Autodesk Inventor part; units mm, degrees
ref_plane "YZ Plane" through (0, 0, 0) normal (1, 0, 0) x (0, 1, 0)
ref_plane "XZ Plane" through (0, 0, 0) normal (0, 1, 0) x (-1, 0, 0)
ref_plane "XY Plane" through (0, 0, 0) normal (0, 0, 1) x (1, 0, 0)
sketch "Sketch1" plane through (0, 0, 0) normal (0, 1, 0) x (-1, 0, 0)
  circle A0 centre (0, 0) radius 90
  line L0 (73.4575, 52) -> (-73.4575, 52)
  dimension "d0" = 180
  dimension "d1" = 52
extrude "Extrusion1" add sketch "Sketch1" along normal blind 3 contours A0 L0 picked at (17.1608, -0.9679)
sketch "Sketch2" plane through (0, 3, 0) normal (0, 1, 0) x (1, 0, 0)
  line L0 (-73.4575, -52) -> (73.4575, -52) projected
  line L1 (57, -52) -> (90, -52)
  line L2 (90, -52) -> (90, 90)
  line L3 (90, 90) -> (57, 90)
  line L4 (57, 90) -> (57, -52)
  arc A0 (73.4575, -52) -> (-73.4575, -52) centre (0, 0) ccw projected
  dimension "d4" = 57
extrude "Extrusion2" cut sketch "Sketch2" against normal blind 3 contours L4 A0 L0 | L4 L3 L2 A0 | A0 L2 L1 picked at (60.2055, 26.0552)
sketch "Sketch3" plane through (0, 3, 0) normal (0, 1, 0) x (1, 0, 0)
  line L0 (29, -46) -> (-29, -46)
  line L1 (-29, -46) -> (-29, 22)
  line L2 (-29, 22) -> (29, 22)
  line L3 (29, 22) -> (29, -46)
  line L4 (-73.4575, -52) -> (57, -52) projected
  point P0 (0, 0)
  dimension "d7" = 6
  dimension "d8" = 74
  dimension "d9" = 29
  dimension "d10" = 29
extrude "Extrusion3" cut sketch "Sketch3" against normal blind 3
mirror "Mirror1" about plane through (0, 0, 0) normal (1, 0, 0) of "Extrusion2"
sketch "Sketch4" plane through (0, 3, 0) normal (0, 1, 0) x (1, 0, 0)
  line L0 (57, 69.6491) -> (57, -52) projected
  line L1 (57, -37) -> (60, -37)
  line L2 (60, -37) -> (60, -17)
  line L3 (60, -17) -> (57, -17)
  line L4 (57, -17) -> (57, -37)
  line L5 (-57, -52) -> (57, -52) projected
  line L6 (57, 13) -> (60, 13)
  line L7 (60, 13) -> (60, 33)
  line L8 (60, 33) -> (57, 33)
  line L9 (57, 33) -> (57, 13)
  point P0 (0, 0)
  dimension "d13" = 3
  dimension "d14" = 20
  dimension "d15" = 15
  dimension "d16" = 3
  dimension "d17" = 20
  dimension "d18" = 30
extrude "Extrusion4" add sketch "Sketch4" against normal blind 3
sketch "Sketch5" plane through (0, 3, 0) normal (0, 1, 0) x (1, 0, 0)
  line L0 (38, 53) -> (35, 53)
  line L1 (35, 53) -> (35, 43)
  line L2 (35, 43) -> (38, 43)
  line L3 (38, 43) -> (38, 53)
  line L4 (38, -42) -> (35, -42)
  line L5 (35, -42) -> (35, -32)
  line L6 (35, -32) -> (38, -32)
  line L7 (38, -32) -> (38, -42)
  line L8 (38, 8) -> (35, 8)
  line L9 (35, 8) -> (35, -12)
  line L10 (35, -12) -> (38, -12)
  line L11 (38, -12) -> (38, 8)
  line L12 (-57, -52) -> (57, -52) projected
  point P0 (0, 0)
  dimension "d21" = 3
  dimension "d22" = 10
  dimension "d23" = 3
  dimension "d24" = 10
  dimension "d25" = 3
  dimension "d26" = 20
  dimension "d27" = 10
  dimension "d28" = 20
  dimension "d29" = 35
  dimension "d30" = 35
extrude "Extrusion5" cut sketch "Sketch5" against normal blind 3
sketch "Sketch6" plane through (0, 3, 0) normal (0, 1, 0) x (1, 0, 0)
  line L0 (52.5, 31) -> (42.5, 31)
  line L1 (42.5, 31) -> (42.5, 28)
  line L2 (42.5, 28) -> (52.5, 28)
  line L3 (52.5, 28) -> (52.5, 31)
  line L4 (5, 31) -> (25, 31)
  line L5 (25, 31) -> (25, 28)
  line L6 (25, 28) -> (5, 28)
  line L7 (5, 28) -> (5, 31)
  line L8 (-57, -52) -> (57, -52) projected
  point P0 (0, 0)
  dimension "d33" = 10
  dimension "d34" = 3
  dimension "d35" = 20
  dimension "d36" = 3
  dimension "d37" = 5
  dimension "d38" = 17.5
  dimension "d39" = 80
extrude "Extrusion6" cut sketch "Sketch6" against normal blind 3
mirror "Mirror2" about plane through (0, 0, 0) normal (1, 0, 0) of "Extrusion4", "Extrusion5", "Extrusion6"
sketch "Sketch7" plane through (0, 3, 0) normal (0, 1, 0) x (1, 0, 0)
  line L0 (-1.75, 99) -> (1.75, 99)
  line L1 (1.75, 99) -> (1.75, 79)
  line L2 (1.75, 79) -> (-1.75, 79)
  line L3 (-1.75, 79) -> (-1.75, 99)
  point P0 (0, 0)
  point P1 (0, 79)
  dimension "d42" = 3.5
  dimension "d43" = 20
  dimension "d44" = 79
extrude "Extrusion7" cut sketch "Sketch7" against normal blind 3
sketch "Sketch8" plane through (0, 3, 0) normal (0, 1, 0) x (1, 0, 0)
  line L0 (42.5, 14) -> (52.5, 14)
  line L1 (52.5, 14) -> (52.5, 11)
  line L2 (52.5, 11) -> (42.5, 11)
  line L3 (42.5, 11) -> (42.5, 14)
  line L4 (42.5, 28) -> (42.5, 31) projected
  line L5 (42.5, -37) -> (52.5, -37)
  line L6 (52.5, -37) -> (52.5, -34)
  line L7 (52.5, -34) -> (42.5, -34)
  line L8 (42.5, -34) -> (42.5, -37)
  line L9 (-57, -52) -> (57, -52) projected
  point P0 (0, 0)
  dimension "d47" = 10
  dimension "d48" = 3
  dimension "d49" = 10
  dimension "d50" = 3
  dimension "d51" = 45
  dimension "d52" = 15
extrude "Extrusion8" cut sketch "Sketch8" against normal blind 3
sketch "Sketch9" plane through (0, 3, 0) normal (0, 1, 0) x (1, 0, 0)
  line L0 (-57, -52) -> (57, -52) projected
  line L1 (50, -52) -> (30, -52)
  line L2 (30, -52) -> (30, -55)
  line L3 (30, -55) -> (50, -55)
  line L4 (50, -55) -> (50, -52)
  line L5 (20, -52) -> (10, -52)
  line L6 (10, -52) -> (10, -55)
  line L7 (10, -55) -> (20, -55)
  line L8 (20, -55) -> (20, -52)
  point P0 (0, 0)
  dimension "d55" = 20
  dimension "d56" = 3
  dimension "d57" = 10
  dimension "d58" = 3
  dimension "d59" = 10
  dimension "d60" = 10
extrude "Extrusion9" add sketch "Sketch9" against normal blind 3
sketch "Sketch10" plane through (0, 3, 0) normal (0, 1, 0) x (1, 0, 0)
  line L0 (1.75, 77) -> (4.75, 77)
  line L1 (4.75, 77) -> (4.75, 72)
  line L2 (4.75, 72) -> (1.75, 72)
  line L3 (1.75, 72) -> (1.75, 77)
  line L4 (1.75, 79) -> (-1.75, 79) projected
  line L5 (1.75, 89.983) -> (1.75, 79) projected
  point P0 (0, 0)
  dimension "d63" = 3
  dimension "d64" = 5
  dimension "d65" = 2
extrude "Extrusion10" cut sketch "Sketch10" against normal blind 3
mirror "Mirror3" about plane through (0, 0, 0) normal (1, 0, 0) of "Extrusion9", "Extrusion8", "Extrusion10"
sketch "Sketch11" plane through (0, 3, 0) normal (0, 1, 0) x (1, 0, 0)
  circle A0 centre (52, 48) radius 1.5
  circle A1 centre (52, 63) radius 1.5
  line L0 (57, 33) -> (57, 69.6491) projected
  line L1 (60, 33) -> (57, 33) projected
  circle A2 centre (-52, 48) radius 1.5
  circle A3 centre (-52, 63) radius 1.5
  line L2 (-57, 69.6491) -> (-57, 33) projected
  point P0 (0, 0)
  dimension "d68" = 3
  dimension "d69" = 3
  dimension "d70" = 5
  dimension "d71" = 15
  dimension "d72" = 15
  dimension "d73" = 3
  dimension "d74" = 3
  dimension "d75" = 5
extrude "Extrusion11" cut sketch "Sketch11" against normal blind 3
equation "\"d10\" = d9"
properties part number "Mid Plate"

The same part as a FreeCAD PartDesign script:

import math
import FreeCAD as App
import Part
import Sketcher
from FreeCAD import Vector
Q = App.Units.Quantity


def add_polygon(sketch, points):
    """Adds a closed chain of lines whose ends are joined by coincident constraints."""
    first, n = sketch.GeometryCount, len(points)
    for a, b in zip(points, points[1:] + points[:1]):
        sketch.addGeometry(Part.LineSegment(App.Vector(*a, 0), App.Vector(*b, 0)), False)
    for i in range(n):
        sketch.addConstraint(Sketcher.Constraint("Coincident", first + i, 2, first + (i + 1) % n, 1))

doc = App.newDocument("Part")
body = doc.addObject("PartDesign::Body", "Body")

sketch1 = doc.addObject("Sketcher::SketchObject", "Sketch")
body.addObject(sketch1)
sketch1.AttachmentSupport = (doc.XZ_Plane, [""])
sketch1.MapMode = "FlatFace"
sketch1.addGeometry([
    Part.ArcOfCircle(Part.Circle(Vector(0, 0, 0), Vector(0, 0, 1), 90), math.radians(145), math.radians(395)),
    Part.LineSegment(Vector(73, 52, 0), Vector(-73, 52, 0)),
], False)
sketch1.addConstraint([
    Sketcher.Constraint("Coincident", 0, 1, 1, 2),
    Sketcher.Constraint("Coincident", 1, 1, 0, 2),
    Sketcher.Constraint("Horizontal", 1),
    Sketcher.Constraint("Coincident", 0, 3, -1, 1),
    Sketcher.Constraint("Radius", 0, Q("90 mm")),
    Sketcher.Constraint("DistanceY", -1, 1, 0, 1, Q("52 mm")),
])
pad1 = doc.addObject("PartDesign::Pad", "Pad")
body.addObject(pad1)
pad1.Profile = sketch1
pad1.Length = 3
pad1.Reversed = True

sketch2 = doc.addObject("Sketcher::SketchObject", "Sketch001")
body.addObject(sketch2)
sketch2.AttachmentSupport = (doc.XZ_Plane, [""])
sketch2.MapMode = "FlatFace"
sketch2.AttachmentOffset = App.Placement(Vector(0, 0, -3), App.Rotation())
add_polygon(sketch2, [(57, 52), (90, 52), (90, -90), (57, -90)])
sketch2.addConstraint([
    Sketcher.Constraint("Horizontal", 0),
    Sketcher.Constraint("Vertical", 1),
    Sketcher.Constraint("Horizontal", 2),
    Sketcher.Constraint("Vertical", 3),
    Sketcher.Constraint("DistanceX", -1, 1, 2, 2, Q("57 mm")),
    Sketcher.Constraint("DistanceX", 0, 1, 0, 2, Q("33 mm")),
    Sketcher.Constraint("DistanceY", 1, 2, 1, 1, Q("142 mm")),
    Sketcher.Constraint("DistanceY", -1, 1, 0, 2, Q("52 mm")),
])
pocket1 = doc.addObject("PartDesign::Pocket", "Pocket")
body.addObject(pocket1)
pocket1.Profile = sketch2
pocket1.Length = 3
pocket1.Reversed = True

sketch3 = doc.addObject("Sketcher::SketchObject", "Sketch002")
body.addObject(sketch3)
sketch3.AttachmentSupport = (doc.XZ_Plane, [""])
sketch3.MapMode = "FlatFace"
sketch3.AttachmentOffset = App.Placement(Vector(0, 0, -3), App.Rotation())
add_polygon(sketch3, [(-29, 46), (29, 46), (29, -22), (-29, -22)])
sketch3.addConstraint([
    Sketcher.Constraint("Horizontal", 0),
    Sketcher.Constraint("Vertical", 1),
    Sketcher.Constraint("Horizontal", 2),
    Sketcher.Constraint("Vertical", 3),
    Sketcher.Constraint("DistanceX", -1, 1, 0, 2, Q("29 mm")),
    Sketcher.Constraint("DistanceX", 2, 2, -1, 1, Q("29 mm")),
    Sketcher.Constraint("DistanceY", 1, 2, 1, 1, Q("68 mm")),
    Sketcher.Constraint("DistanceY", -1, 1, 0, 2, Q("46 mm")),
])
pocket2 = doc.addObject("PartDesign::Pocket", "Pocket001")
body.addObject(pocket2)
pocket2.Profile = sketch3
pocket2.Length = 3
pocket2.Reversed = True
doc.recompute()

mirrored = doc.addObject("PartDesign::Mirrored", "Mirrored")
body.addObject(mirrored)
mirrored.Originals = [pocket1]
mirrored.MirrorPlane = (doc.YZ_Plane, [""])
body.Tip = mirrored

sketch4 = doc.addObject("Sketcher::SketchObject", "Sketch003")
body.addObject(sketch4)
sketch4.AttachmentSupport = (doc.XZ_Plane, [""])
sketch4.MapMode = "FlatFace"
sketch4.AttachmentOffset = App.Placement(Vector(0, 0, -3), App.Rotation())
add_polygon(sketch4, [(60, -33), (57, -33), (57, -13), (60, -13)])
add_polygon(sketch4, [(60, 17), (57, 17), (57, 37), (60, 37)])
sketch4.addConstraint([
    Sketcher.Constraint("Horizontal", 0),
    Sketcher.Constraint("Vertical", 1),
    Sketcher.Constraint("Horizontal", 2),
    Sketcher.Constraint("Vertical", 3),
    Sketcher.Constraint("Horizontal", 4),
    Sketcher.Constraint("Vertical", 5),
    Sketcher.Constraint("Horizontal", 6),
    Sketcher.Constraint("Vertical", 7),
    Sketcher.Constraint("Vertical", 1, 2, 4, 2),
    Sketcher.Constraint("Vertical", 3, 2, 6, 2),
    Sketcher.Constraint("Equal", 3, 5),
    Sketcher.Constraint("DistanceX", 0, 2, 0, 1, Q("3 mm")),
    Sketcher.Constraint("DistanceY", 1, 1, 1, 2, Q("20 mm")),
    Sketcher.Constraint("DistanceY", 1, 2, 4, 2, Q("30 mm")),
    Sketcher.Constraint("DistanceX", -1, 1, 0, 2, Q("57 mm")),
    Sketcher.Constraint("DistanceY", 0, 2, -1, 1, Q("33 mm")),
])
pad2 = doc.addObject("PartDesign::Pad", "Pad001")
body.addObject(pad2)
pad2.Profile = sketch4
pad2.Length = 3

sketch5 = doc.addObject("Sketcher::SketchObject", "Sketch004")
body.addObject(sketch5)
sketch5.AttachmentSupport = (doc.XZ_Plane, [""])
sketch5.MapMode = "FlatFace"
sketch5.AttachmentOffset = App.Placement(Vector(0, 0, -3), App.Rotation())
add_polygon(sketch5, [(38, -43), (38, -53), (35, -53), (35, -43)])
add_polygon(sketch5, [(35, 42), (38, 42), (38, 32), (35, 32)])
add_polygon(sketch5, [(38, 12), (38, -8), (35, -8), (35, 12)])
sketch5.addConstraint([
    Sketcher.Constraint("Vertical", 0),
    Sketcher.Constraint("Horizontal", 1),
    Sketcher.Constraint("Vertical", 2),
    Sketcher.Constraint("Horizontal", 3),
    Sketcher.Constraint("Horizontal", 4),
    Sketcher.Constraint("Vertical", 5),
    Sketcher.Constraint("Horizontal", 6),
    Sketcher.Constraint("Vertical", 7),
    Sketcher.Constraint("Vertical", 8),
    Sketcher.Constraint("Horizontal", 9),
    Sketcher.Constraint("Vertical", 10),
    Sketcher.Constraint("Horizontal", 11),
    Sketcher.Constraint("Vertical", 3, 2, 4, 2),
    Sketcher.Constraint("Vertical", 2, 2, 6, 2),
    Sketcher.Constraint("Vertical", 5, 2, 8, 2),
    Sketcher.Constraint("Vertical", 7, 2, 9, 2),
    Sketcher.Constraint("Equal", 2, 5),
    Sketcher.Constraint("DistanceX", 1, 2, 1, 1, Q("3 mm")),
    Sketcher.Constraint("DistanceY", 0, 2, 0, 1, Q("10 mm")),
    Sketcher.Constraint("DistanceY", 8, 2, 8, 1, Q("20 mm")),
    Sketcher.Constraint("DistanceX", -1, 1, 1, 2, Q("35 mm")),
    Sketcher.Constraint("DistanceY", 3, 2, 8, 2, Q("35 mm")),
    Sketcher.Constraint("DistanceY", 10, 2, 6, 2, Q("20 mm")),
    Sketcher.Constraint("DistanceY", 0, 2, -1, 1, Q("53 mm")),
])
pocket3 = doc.addObject("PartDesign::Pocket", "Pocket002")
body.addObject(pocket3)
pocket3.Profile = sketch5
pocket3.Length = 3
pocket3.Reversed = True

sketch6 = doc.addObject("Sketcher::SketchObject", "Sketch005")
body.addObject(sketch6)
sketch6.AttachmentSupport = (doc.XZ_Plane, [""])
sketch6.MapMode = "FlatFace"
sketch6.AttachmentOffset = App.Placement(Vector(0, 0, -3), App.Rotation())
add_polygon(sketch6, [(52.5, -28), (52.5, -31), (42.5, -31), (42.5, -28)])
add_polygon(sketch6, [(25, -31), (5, -31), (5, -28), (25, -28)])
sketch6.addConstraint([
    Sketcher.Constraint("Vertical", 0),
    Sketcher.Constraint("Horizontal", 1),
    Sketcher.Constraint("Vertical", 2),
    Sketcher.Constraint("Horizontal", 3),
    Sketcher.Constraint("Horizontal", 4),
    Sketcher.Constraint("Vertical", 5),
    Sketcher.Constraint("Horizontal", 6),
    Sketcher.Constraint("Vertical", 7),
    Sketcher.Constraint("Horizontal", 1, 2, 4, 2),
    Sketcher.Constraint("Horizontal", 3, 2, 5, 2),
    Sketcher.Constraint("DistanceX", 1, 2, 1, 1, Q("10 mm")),
    Sketcher.Constraint("DistanceX", 4, 2, 4, 1, Q("20 mm")),
    Sketcher.Constraint("DistanceY", 0, 2, 0, 1, Q("3 mm")),
    Sketcher.Constraint("DistanceX", -1, 1, 4, 2, Q("5 mm")),
    Sketcher.Constraint("DistanceX", 6, 2, 2, 2, Q("17.5 mm")),
    Sketcher.Constraint("DistanceY", 0, 2, -1, 1, Q("31 mm")),
])
pocket4 = doc.addObject("PartDesign::Pocket", "Pocket003")
body.addObject(pocket4)
pocket4.Profile = sketch6
pocket4.Length = 3
pocket4.Reversed = True
doc.recompute()

mirrored2 = doc.addObject("PartDesign::Mirrored", "Mirrored001")
body.addObject(mirrored2)
mirrored2.Originals = [pad2, pocket3, pocket4]
mirrored2.MirrorPlane = (doc.YZ_Plane, [""])
body.Tip = mirrored2

sketch7 = doc.addObject("Sketcher::SketchObject", "Sketch006")
body.addObject(sketch7)
sketch7.AttachmentSupport = (doc.XZ_Plane, [""])
sketch7.MapMode = "FlatFace"
sketch7.AttachmentOffset = App.Placement(Vector(0, 0, -3), App.Rotation())
add_polygon(sketch7, [(1.8, -99), (-1.8, -99), (-1.8, -79), (1.8, -79)])
sketch7.addConstraint([
    Sketcher.Constraint("Horizontal", 0),
    Sketcher.Constraint("Vertical", 1),
    Sketcher.Constraint("Horizontal", 2),
    Sketcher.Constraint("Vertical", 3),
    Sketcher.Constraint("DistanceY", 1, 1, 1, 2, Q("20 mm")),
    Sketcher.Constraint("DistanceX", 0, 2, 0, 1, Q("3.5 mm")),
    Sketcher.Constraint("DistanceY", 1, 2, -1, 1, Q("79 mm")),
    Sketcher.Constraint("DistanceX", 0, 2, -1, 1, Q("1.75 mm")),
])
pocket5 = doc.addObject("PartDesign::Pocket", "Pocket004")
body.addObject(pocket5)
pocket5.Profile = sketch7
pocket5.Length = 3
pocket5.Reversed = True

sketch8 = doc.addObject("Sketcher::SketchObject", "Sketch007")
body.addObject(sketch8)
sketch8.AttachmentSupport = (doc.XZ_Plane, [""])
sketch8.MapMode = "FlatFace"
sketch8.AttachmentOffset = App.Placement(Vector(0, 0, -3), App.Rotation())
add_polygon(sketch8, [(52.5, -14), (42.5, -14), (42.5, -11), (52.5, -11)])
add_polygon(sketch8, [(42.5, 34), (42.5, 37), (52.5, 37), (52.5, 34)])
sketch8.addConstraint([
    Sketcher.Constraint("Horizontal", 0),
    Sketcher.Constraint("Vertical", 1),
    Sketcher.Constraint("Horizontal", 2),
    Sketcher.Constraint("Vertical", 3),
    Sketcher.Constraint("Vertical", 4),
    Sketcher.Constraint("Horizontal", 5),
    Sketcher.Constraint("Vertical", 6),
    Sketcher.Constraint("Horizontal", 7),
    Sketcher.Constraint("Vertical", 1, 2, 4, 2),
    Sketcher.Constraint("Vertical", 3, 2, 5, 2),
    Sketcher.Constraint("Equal", 3, 4),
    Sketcher.Constraint("DistanceX", 0, 2, 0, 1, Q("10 mm")),
    Sketcher.Constraint("DistanceY", 1, 1, 1, 2, Q("3 mm")),
    Sketcher.Constraint("DistanceY", 2, 2, 6, 2, Q("45 mm")),
    Sketcher.Constraint("DistanceY", 0, 2, -1, 1, Q("14 mm")),
    Sketcher.Constraint("DistanceX", -1, 1, 0, 2, Q("42.5 mm")),
])
pocket6 = doc.addObject("PartDesign::Pocket", "Pocket005")
body.addObject(pocket6)
pocket6.Profile = sketch8
pocket6.Length = 3
pocket6.Reversed = True

sketch9 = doc.addObject("Sketcher::SketchObject", "Sketch008")
body.addObject(sketch9)
sketch9.AttachmentSupport = (doc.XZ_Plane, [""])
sketch9.MapMode = "FlatFace"
sketch9.AttachmentOffset = App.Placement(Vector(0, 0, -3), App.Rotation())
add_polygon(sketch9, [(50, 52), (30, 52), (30, 55), (50, 55)])
add_polygon(sketch9, [(20, 52), (10, 52), (10, 55), (20, 55)])
sketch9.addConstraint([
    Sketcher.Constraint("Horizontal", 0),
    Sketcher.Constraint("Vertical", 1),
    Sketcher.Constraint("Horizontal", 2),
    Sketcher.Constraint("Vertical", 3),
    Sketcher.Constraint("Horizontal", 4),
    Sketcher.Constraint("Vertical", 5),
    Sketcher.Constraint("Horizontal", 6),
    Sketcher.Constraint("Vertical", 7),
    Sketcher.Constraint("Horizontal", 3, 2, 4, 2),
    Sketcher.Constraint("Horizontal", 2, 2, 5, 2),
    Sketcher.Constraint("DistanceX", 0, 2, 0, 1, Q("20 mm")),
    Sketcher.Constraint("DistanceX", 4, 2, 4, 1, Q("10 mm")),
    Sketcher.Constraint("DistanceY", 1, 1, 1, 2, Q("3 mm")),
    Sketcher.Constraint("DistanceX", -1, 1, 4, 2, Q("10 mm")),
    Sketcher.Constraint("DistanceX", 4, 2, 0, 2, Q("20 mm")),
    Sketcher.Constraint("DistanceY", -1, 1, 0, 2, Q("52 mm")),
])
pad3 = doc.addObject("PartDesign::Pad", "Pad002")
body.addObject(pad3)
pad3.Profile = sketch9
pad3.Length = 3

sketch10 = doc.addObject("Sketcher::SketchObject", "Sketch009")
body.addObject(sketch10)
sketch10.AttachmentSupport = (doc.XZ_Plane, [""])
sketch10.MapMode = "FlatFace"
sketch10.AttachmentOffset = App.Placement(Vector(0, 0, -3), App.Rotation())
add_polygon(sketch10, [(4.8, -77), (1.8, -77), (1.8, -72), (4.8, -72)])
sketch10.addConstraint([
    Sketcher.Constraint("Horizontal", 0),
    Sketcher.Constraint("Vertical", 1),
    Sketcher.Constraint("Horizontal", 2),
    Sketcher.Constraint("Vertical", 3),
    Sketcher.Constraint("DistanceX", 0, 2, 0, 1, Q("3 mm")),
    Sketcher.Constraint("DistanceY", 1, 1, 1, 2, Q("5 mm")),
    Sketcher.Constraint("DistanceY", 0, 2, -1, 1, Q("77 mm")),
    Sketcher.Constraint("DistanceX", -1, 1, 0, 2, Q("1.75 mm")),
])
pocket7 = doc.addObject("PartDesign::Pocket", "Pocket006")
body.addObject(pocket7)
pocket7.Profile = sketch10
pocket7.Length = 3
pocket7.Reversed = True
doc.recompute()

mirrored3 = doc.addObject("PartDesign::Mirrored", "Mirrored002")
body.addObject(mirrored3)
mirrored3.Originals = [pad3, pocket6, pocket7]
mirrored3.MirrorPlane = (doc.YZ_Plane, [""])
body.Tip = mirrored3

sketch11 = doc.addObject("Sketcher::SketchObject", "Sketch010")
body.addObject(sketch11)
sketch11.AttachmentSupport = (doc.XZ_Plane, [""])
sketch11.MapMode = "FlatFace"
sketch11.AttachmentOffset = App.Placement(Vector(0, 0, -3), App.Rotation())
sketch11.addGeometry([
    Part.Circle(Vector(52, -48, 0), Vector(0, 0, 1), 1.5),
    Part.Circle(Vector(52, -63, 0), Vector(0, 0, 1), 1.5),
    Part.Circle(Vector(-52, -48, 0), Vector(0, 0, 1), 1.5),
    Part.Circle(Vector(-52, -63, 0), Vector(0, 0, 1), 1.5),
], False)
sketch11.addConstraint([
    Sketcher.Constraint("Equal", 0, 1),
    Sketcher.Constraint("Equal", 1, 2),
    Sketcher.Constraint("Equal", 2, 3),
    Sketcher.Constraint("Symmetric", 0, 3, 2, 3, -2),
    Sketcher.Constraint("Symmetric", 1, 3, 3, 3, -2),
    Sketcher.Constraint("Vertical", 0, 3, 1, 3),
    Sketcher.Constraint("Diameter", 0, Q("3 mm")),
    Sketcher.Constraint("DistanceY", 1, 3, 0, 3, Q("15 mm")),
    Sketcher.Constraint("DistanceX", -1, 1, 0, 3, Q("52 mm")),
    Sketcher.Constraint("DistanceY", 0, 3, -1, 1, Q("48 mm")),
])
pocket8 = doc.addObject("PartDesign::Pocket", "Pocket007")
body.addObject(pocket8)
pocket8.Profile = sketch11
pocket8.Length = 3
pocket8.Reversed = True

doc.recompute()
